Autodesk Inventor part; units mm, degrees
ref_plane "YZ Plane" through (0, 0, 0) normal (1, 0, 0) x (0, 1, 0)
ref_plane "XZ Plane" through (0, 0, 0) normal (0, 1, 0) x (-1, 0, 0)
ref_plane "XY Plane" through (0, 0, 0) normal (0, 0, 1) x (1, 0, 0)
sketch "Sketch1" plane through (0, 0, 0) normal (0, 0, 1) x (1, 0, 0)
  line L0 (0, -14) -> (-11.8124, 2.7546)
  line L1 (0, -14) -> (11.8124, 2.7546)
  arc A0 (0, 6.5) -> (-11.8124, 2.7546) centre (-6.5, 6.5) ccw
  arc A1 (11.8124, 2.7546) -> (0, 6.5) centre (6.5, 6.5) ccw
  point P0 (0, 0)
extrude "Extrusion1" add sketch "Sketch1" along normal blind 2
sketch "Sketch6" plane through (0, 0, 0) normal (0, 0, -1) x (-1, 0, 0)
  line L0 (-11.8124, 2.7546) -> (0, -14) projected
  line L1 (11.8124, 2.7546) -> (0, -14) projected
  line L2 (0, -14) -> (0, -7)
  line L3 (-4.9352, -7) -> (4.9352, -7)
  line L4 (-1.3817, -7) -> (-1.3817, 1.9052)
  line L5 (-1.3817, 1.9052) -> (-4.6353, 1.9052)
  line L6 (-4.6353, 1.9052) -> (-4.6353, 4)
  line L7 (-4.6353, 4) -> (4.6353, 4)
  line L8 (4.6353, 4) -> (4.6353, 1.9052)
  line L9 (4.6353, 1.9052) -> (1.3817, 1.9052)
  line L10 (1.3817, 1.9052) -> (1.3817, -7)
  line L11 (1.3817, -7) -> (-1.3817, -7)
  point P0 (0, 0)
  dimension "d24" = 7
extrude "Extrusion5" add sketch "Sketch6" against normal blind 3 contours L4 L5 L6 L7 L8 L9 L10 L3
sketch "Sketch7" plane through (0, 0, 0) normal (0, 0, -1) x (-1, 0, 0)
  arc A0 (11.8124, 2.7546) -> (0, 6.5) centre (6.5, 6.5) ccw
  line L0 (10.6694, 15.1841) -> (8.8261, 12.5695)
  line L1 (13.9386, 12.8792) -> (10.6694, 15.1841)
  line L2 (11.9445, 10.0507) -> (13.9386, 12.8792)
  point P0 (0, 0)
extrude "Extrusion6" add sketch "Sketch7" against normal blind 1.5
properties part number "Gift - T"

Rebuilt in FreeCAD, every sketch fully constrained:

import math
import FreeCAD as App
import Part
import Sketcher
Q = App.Units.Quantity

doc = App.newDocument("Part")
body = doc.addObject("PartDesign::Body", "Body")

# Sketch on XY plane
sketch1 = doc.addObject("Sketcher::SketchObject", "Sketch")
body.addObject(sketch1)
sketch1.AttachmentSupport = (doc.XY_Plane, [""])
sketch1.MapMode = "FlatFace"
sketch1.addGeometry([
    Part.LineSegment(App.Vector(-11.8124, 2.7546, 0), App.Vector(0, -14, 0)),
    Part.LineSegment(App.Vector(0, -14, 0), App.Vector(11.8124, 2.7546, 0)),
    Part.ArcOfCircle(Part.Circle(App.Vector(6.5, 6.5, 0), App.Vector(0, 0, 1), 6.49997), math.radians(-35.184975), math.radians(180)),
    Part.ArcOfCircle(Part.Circle(App.Vector(-6.5, 6.5, 0), App.Vector(0, 0, 1), 6.5), math.radians(0), math.radians(215.184975)),
], False)
sketch1.addConstraint([
    Sketcher.Constraint("Coincident", 0, 2, 1, 1),
    Sketcher.Constraint("Tangent", 1, 2, 2, 1),
    Sketcher.Constraint("Tangent", 2, 2, 3, 1),
    Sketcher.Constraint("Tangent", 3, 2, 0, 1),
    Sketcher.Constraint("Equal", 2, 3),
    Sketcher.Constraint("Symmetric", 2, 3, 3, 3, -2),
    Sketcher.Constraint("PointOnObject", 0, 2, -2),
    Sketcher.Constraint("Radius", 2, Q("6.5 mm")),
    Sketcher.Constraint("DistanceY", 0, 2, -1, 1, Q("14 mm")),
    Sketcher.Constraint("Distance", 0, Q("20.5 mm")),
])
pad1 = doc.addObject("PartDesign::Pad", "Pad")
body.addObject(pad1)
pad1.Profile = sketch1
pad1.Length = 2

# Sketch on XY plane
sketch2 = doc.addObject("Sketcher::SketchObject", "Sketch001")
body.addObject(sketch2)
sketch2.AttachmentSupport = (doc.XY_Plane, [""])
sketch2.MapMode = "FlatFace"
sketch2.addGeometry([
    Part.LineSegment(App.Vector(1.3817, 1.9052, 0), App.Vector(1.3817, -7, 0)),  # 0
    Part.LineSegment(App.Vector(1.3817, -7, 0), App.Vector(-1.3817, -7, 0)),  # 1
    Part.LineSegment(App.Vector(-1.3817, -7, 0), App.Vector(-1.3817, 1.9052, 0)),  # 2
    Part.LineSegment(App.Vector(-1.3817, 1.9052, 0), App.Vector(-4.6353, 1.9052, 0)),  # 3
    Part.LineSegment(App.Vector(-4.6353, 1.9052, 0), App.Vector(-4.6353, 4, 0)),  # 4
    Part.LineSegment(App.Vector(-4.6353, 4, 0), App.Vector(4.6353, 4, 0)),  # 5
    Part.LineSegment(App.Vector(4.6353, 4, 0), App.Vector(4.6353, 1.9052, 0)),  # 6
    Part.LineSegment(App.Vector(4.6353, 1.9052, 0), App.Vector(1.3817, 1.9052, 0)),  # 7
], False)
sketch2.addConstraint([
    Sketcher.Constraint("Coincident", 0, 2, 1, 1),
    Sketcher.Constraint("Coincident", 1, 2, 2, 1),
    Sketcher.Constraint("Coincident", 2, 2, 3, 1),
    Sketcher.Constraint("Coincident", 3, 2, 4, 1),
    Sketcher.Constraint("Coincident", 4, 2, 5, 1),
    Sketcher.Constraint("Coincident", 5, 2, 6, 1),
    Sketcher.Constraint("Coincident", 6, 2, 7, 1),
    Sketcher.Constraint("Coincident", 7, 2, 0, 1),
    Sketcher.Constraint("Vertical", 0),
    Sketcher.Constraint("Horizontal", 1),
    Sketcher.Constraint("Vertical", 2),
    Sketcher.Constraint("Horizontal", 3),
    Sketcher.Constraint("Vertical", 4),
    Sketcher.Constraint("Horizontal", 5),
    Sketcher.Constraint("Vertical", 6),
    Sketcher.Constraint("Horizontal", 7),
    Sketcher.Constraint("Symmetric", 3, 2, 6, 2, -2),
    Sketcher.Constraint("Equal", 3, 7),
    Sketcher.Constraint("DistanceY", 0, 2, -1, 1, Q("7 mm")),
    Sketcher.Constraint("DistanceY", -1, 1, 4, 2, Q("4 mm")),
    Sketcher.Constraint("DistanceX", 1, 2, 1, 1, Q("2.7634 mm")),
    Sketcher.Constraint("DistanceX", 3, 2, 3, 1, Q("3.2536 mm")),
    Sketcher.Constraint("DistanceY", 0, 2, 0, 1, Q("8.9052 mm")),
])
pad2 = doc.addObject("PartDesign::Pad", "Pad001")
body.addObject(pad2)
pad2.Profile = sketch2
pad2.Length = 3

# Sketch on XY plane
sketch3 = doc.addObject("Sketcher::SketchObject", "Sketch002")
body.addObject(sketch3)
sketch3.AttachmentSupport = (doc.XY_Plane, [""])
sketch3.MapMode = "FlatFace"
sketch3.addGeometry([
    Part.ArcOfCircle(Part.Circle(App.Vector(-6.5, 6.5, 0), App.Vector(0, 0, 1), 6.49997), math.radians(110.969035), math.radians(146.889107)),
    Part.LineSegment(App.Vector(-11.9445, 10.0507, 0), App.Vector(-13.9386, 12.8792, 0)),
    Part.LineSegment(App.Vector(-13.9386, 12.8792, 0), App.Vector(-10.6694, 15.1841, 0)),
    Part.LineSegment(App.Vector(-10.6694, 15.1841, 0), App.Vector(-8.8261, 12.5695, 0)),
], False)
sketch3.addConstraint([
    Sketcher.Constraint("Coincident", 0, 2, 1, 1),
    Sketcher.Constraint("Coincident", 1, 2, 2, 1),
    Sketcher.Constraint("Coincident", 2, 2, 3, 1),
    Sketcher.Constraint("Coincident", 3, 2, 0, 1),
    Sketcher.Constraint("Perpendicular", 1, 2),
    Sketcher.Constraint("Perpendicular", 2, 3),
    Sketcher.Constraint("Radius", 0, Q("6.5 mm")),
    Sketcher.Constraint("Distance", 2, Q("4 mm")),
    Sketcher.Constraint("DistanceX", 0, 3, -1, 1, Q("6.5 mm")),
    Sketcher.Constraint("DistanceY", -1, 1, 0, 3, Q("6.5 mm")),
    Sketcher.Constraint("Distance", 3, Q("3.199 mm")),
    Sketcher.Constraint("DistanceY", -1, 1, 2, 2, Q("15.184 mm")),
    Sketcher.Constraint("DistanceX", 3, 2, -1, 1, Q("8.826 mm")),
])
pad3 = doc.addObject("PartDesign::Pad", "Pad002")
body.addObject(pad3)
pad3.Profile = sketch3
pad3.Length = 1.5

doc.recompute()
